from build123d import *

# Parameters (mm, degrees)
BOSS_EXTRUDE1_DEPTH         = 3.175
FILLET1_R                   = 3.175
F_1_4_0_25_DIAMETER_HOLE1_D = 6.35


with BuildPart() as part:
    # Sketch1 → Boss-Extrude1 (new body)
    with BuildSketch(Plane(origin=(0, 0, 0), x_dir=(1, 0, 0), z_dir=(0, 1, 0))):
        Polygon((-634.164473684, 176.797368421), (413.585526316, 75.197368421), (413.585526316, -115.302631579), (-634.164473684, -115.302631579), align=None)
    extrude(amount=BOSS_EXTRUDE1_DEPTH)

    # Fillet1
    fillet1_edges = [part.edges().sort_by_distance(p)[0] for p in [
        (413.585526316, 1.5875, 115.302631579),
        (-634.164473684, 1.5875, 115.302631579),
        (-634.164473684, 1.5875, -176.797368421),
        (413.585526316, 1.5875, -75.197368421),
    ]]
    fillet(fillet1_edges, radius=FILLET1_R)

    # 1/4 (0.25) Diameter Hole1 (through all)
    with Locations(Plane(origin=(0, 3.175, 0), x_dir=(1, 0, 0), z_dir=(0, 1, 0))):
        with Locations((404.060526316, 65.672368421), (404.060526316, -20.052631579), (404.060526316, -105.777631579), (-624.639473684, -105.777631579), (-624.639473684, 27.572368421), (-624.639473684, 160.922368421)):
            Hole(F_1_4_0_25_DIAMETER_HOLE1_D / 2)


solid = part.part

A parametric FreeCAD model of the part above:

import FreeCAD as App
import Part
import Sketcher
from FreeCAD import Vector
Q = App.Units.Quantity


def edges_at(feature, points):
    """Names of the edges that pass closest to the given points."""
    edges = feature.Shape.Edges
    near = lambda p: min(range(len(edges)), key=lambda i: edges[i].distToShape(Part.Vertex(*p))[0])
    return sorted({f"Edge{near(p) + 1}" for p in points})

doc = App.newDocument("Part")
body = doc.addObject("PartDesign::Body", "Body")

# Sketch on XZ plane
sketch1 = doc.addObject("Sketcher::SketchObject", "Sketch")
body.addObject(sketch1)
sketch1.AttachmentSupport = (doc.XZ_Plane, [""])
sketch1.MapMode = "FlatFace"
sketch1.addGeometry(Part.LineSegment(Vector(413.585526, -75.197368, 0), Vector(-634.164474, -176.797368, 0)), False)
sketch1.addGeometry(Part.LineSegment(Vector(-634.164474, -176.797368, 0), Vector(-634.164474, 115.302632, 0)), False)
sketch1.addGeometry(Part.LineSegment(Vector(-634.164474, 115.302632, 0), Vector(413.585526, 115.302632, 0)), False)
sketch1.addGeometry(Part.LineSegment(Vector(413.585526, 115.302632, 0), Vector(413.585526, -75.197368, 0)), False)
sketch1.addConstraint(Sketcher.Constraint("Coincident", 0, 2, 1, 1))
sketch1.addConstraint(Sketcher.Constraint("Coincident", 1, 2, 2, 1))
sketch1.addConstraint(Sketcher.Constraint("Coincident", 2, 2, 3, 1))
sketch1.addConstraint(Sketcher.Constraint("Coincident", 3, 2, 0, 1))
sketch1.addConstraint(Sketcher.Constraint("Vertical", 1))
sketch1.addConstraint(Sketcher.Constraint("Horizontal", 2))
sketch1.addConstraint(Sketcher.Constraint("Vertical", 3))
sketch1.addConstraint(Sketcher.Constraint("DistanceY", 1, 1, 1, 2, Q("11.5 in")))
sketch1.addConstraint(Sketcher.Constraint("DistanceY", 3, 2, 3, 1, Q("7.5 in")))
sketch1.addConstraint(Sketcher.Constraint("DistanceX", 2, 1, 2, 2, Q("41.25 in")))
sketch1.addConstraint(Sketcher.Constraint("DistanceY", 0, 2, -1, 1, 176.797368))
sketch1.addConstraint(Sketcher.Constraint("DistanceX", 0, 2, -1, 1, 634.164474))
pad1 = doc.addObject("PartDesign::Pad", "Pad")
body.addObject(pad1)
pad1.Profile = sketch1
pad1.Length = Q("0.125 in")
pad1.Reversed = True
doc.recompute()

fillet = doc.addObject("PartDesign::Fillet", "Fillet")
body.addObject(fillet)
fillet.Base = (pad1, edges_at(pad1, [
    (413.586, 1.587, 115.303),
    (-634.164, 1.587, 115.303),
    (-634.164, 1.587, -176.797),
    (413.586, 1.587, -75.197),
]))
fillet.Radius = Q("0.125 in")

# Sketch on XZ plane
sketch2 = doc.addObject("Sketcher::SketchObject", "Sketch001")
body.addObject(sketch2)
sketch2.AttachmentSupport = (doc.XZ_Plane, [""])
sketch2.MapMode = "FlatFace"
sketch2.AttachmentOffset = App.Placement(Vector(0, 0, -0.125 * 25.4), App.Rotation())
sketch2.addGeometry(Part.Circle(Vector(404.060526, -65.672368, 0), Vector(0, 0, 1), 3.175), False)
sketch2.addGeometry(Part.Circle(Vector(404.060526, 20.052632, 0), Vector(0, 0, 1), 3.175), False)
sketch2.addGeometry(Part.Circle(Vector(404.060526, 105.777632, 0), Vector(0, 0, 1), 3.175), False)
sketch2.addGeometry(Part.Circle(Vector(-624.639474, 105.777632, 0), Vector(0, 0, 1), 3.175), False)
sketch2.addGeometry(Part.Circle(Vector(-624.639474, -27.572368, 0), Vector(0, 0, 1), 3.175), False)
sketch2.addGeometry(Part.Circle(Vector(-624.639474, -160.922368, 0), Vector(0, 0, 1), 3.175), False)
sketch2.addConstraint(Sketcher.Constraint("Equal", 0, 1))
sketch2.addConstraint(Sketcher.Constraint("Equal", 1, 2))
sketch2.addConstraint(Sketcher.Constraint("Equal", 2, 3))
sketch2.addConstraint(Sketcher.Constraint("Equal", 3, 4))
sketch2.addConstraint(Sketcher.Constraint("Equal", 4, 5))
sketch2.addConstraint(Sketcher.Constraint("Horizontal", 2, 3, 3, 3))
sketch2.addConstraint(Sketcher.Constraint("Vertical", 0, 3, 1, 3))
sketch2.addConstraint(Sketcher.Constraint("Vertical", 1, 3, 2, 3))
sketch2.addConstraint(Sketcher.Constraint("Vertical", 3, 3, 4, 3))
sketch2.addConstraint(Sketcher.Constraint("Vertical", 4, 3, 5, 3))
sketch2.addConstraint(Sketcher.Constraint("Diameter", 0, Q("0.25 in")))
sketch2.addConstraint(Sketcher.Constraint("DistanceX", 3, 3, 2, 3, Q("40.5 in")))
sketch2.addConstraint(Sketcher.Constraint("DistanceY", 0, 3, 4, 3, Q("1.5 in")))
sketch2.addConstraint(Sketcher.Constraint("DistanceY", 5, 3, 3, 3, Q("10.5 in")))
sketch2.addConstraint(Sketcher.Constraint("DistanceY", 0, 3, 2, 3, Q("6.75 in")))
sketch2.addConstraint(Sketcher.Constraint("DistanceY", 0, 3, 1, 3, Q("3.375 in")))
sketch2.addConstraint(Sketcher.Constraint("DistanceY", 0, 3, -1, 1, 65.672368))
sketch2.addConstraint(Sketcher.Constraint("DistanceX", -1, 1, 0, 3, 404.060526))
doc.recompute()
hole = doc.addObject("PartDesign::Hole", "Hole")
body.addObject(hole)
hole.Profile = sketch2
hole.ThreadType = "None"
hole.Diameter = Q("0.25 in")
hole.DepthType = "ThroughAll"
hole.Reversed = True

doc.recompute()
